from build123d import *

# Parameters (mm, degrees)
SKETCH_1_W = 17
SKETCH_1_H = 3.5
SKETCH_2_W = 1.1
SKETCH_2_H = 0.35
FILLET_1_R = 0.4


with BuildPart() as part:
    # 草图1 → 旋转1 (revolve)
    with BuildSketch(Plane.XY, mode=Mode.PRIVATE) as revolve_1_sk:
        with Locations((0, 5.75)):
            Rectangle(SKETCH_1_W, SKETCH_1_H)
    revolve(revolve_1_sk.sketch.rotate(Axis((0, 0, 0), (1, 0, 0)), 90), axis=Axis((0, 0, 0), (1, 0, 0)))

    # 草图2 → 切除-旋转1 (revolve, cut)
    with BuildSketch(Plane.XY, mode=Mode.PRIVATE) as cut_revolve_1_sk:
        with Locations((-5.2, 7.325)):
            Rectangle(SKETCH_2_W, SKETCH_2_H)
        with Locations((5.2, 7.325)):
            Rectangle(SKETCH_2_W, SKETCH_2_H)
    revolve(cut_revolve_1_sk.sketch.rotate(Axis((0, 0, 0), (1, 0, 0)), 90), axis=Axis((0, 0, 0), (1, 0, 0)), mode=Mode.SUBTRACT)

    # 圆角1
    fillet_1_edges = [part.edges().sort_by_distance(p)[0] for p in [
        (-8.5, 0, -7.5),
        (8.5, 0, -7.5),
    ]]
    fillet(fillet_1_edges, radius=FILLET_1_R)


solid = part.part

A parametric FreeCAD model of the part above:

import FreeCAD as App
import Part
import Sketcher

V = App.Vector
Q = App.Units.Quantity


def edges_at(feature, points):
    """Names of the edges that pass closest to the given points."""
    edges = feature.Shape.Edges
    near = lambda p: min(range(len(edges)), key=lambda i: edges[i].distToShape(Part.Vertex(*p))[0])
    return sorted({f"Edge{near(p) + 1}" for p in points})


def add_polygon(sketch, points):
    """Adds a closed chain of lines whose ends are joined by coincident constraints."""
    first, n = sketch.GeometryCount, len(points)
    for a, b in zip(points, points[1:] + points[:1]):
        sketch.addGeometry(Part.LineSegment(App.Vector(*a, 0), App.Vector(*b, 0)), False)
    for i in range(n):
        sketch.addConstraint(Sketcher.Constraint("Coincident", first + i, 2, first + (i + 1) % n, 1))

doc = App.newDocument("Part")
body = doc.addObject("PartDesign::Body", "Body")

# Sketch on XY plane
sketch1 = body.newObject("Sketcher::SketchObject", "Sketch")
sketch1.AttachmentSupport = (doc.getObject("XY_Plane"), [""])
sketch1.MapMode = "FlatFace"
add_polygon(sketch1, [(-8.5, 7.5), (-8.5, 4), (8.5, 4), (8.5, 7.5)])  # lines 0-3
sketch1.addConstraint(Sketcher.Constraint("Vertical", 0))
sketch1.addConstraint(Sketcher.Constraint("Horizontal", 1))
sketch1.addConstraint(Sketcher.Constraint("Vertical", 2))
sketch1.addConstraint(Sketcher.Constraint("Horizontal", 3))
sketch1.addConstraint(Sketcher.Constraint("DistanceX", 1, 1, 1, 2, Q("17 mm")))
sketch1.addConstraint(Sketcher.Constraint("DistanceY", 0, 2, 0, 1, Q("3.5 mm")))
sketch1.addConstraint(Sketcher.Constraint("DistanceY", -1, 1, 0, 2, Q("4 mm")))
sketch1.addConstraint(Sketcher.Constraint("DistanceX", 0, 2, -1, 1, Q("8.5 mm")))
revolution = body.newObject("PartDesign::Revolution", "Revolution")
revolution.Profile = sketch1
revolution.ReferenceAxis = (sketch1, ["H_Axis"])
revolution.Angle = 360

# Sketch on XY plane
sketch2 = body.newObject("Sketcher::SketchObject", "Sketch001")
sketch2.AttachmentSupport = (doc.getObject("XY_Plane"), [""])
sketch2.MapMode = "FlatFace"
add_polygon(sketch2, [(-5.75, 7.5), (-5.75, 7.15), (-4.65, 7.15), (-4.65, 7.5)])  # lines 0-3
add_polygon(sketch2, [(4.65, 7.5), (4.65, 7.15), (5.75, 7.15), (5.75, 7.5)])  # lines 4-7
sketch2.addConstraint(Sketcher.Constraint("Vertical", 0))
sketch2.addConstraint(Sketcher.Constraint("Horizontal", 1))
sketch2.addConstraint(Sketcher.Constraint("Vertical", 2))
sketch2.addConstraint(Sketcher.Constraint("Horizontal", 3))
sketch2.addConstraint(Sketcher.Constraint("Vertical", 4))
sketch2.addConstraint(Sketcher.Constraint("Horizontal", 5))
sketch2.addConstraint(Sketcher.Constraint("Vertical", 6))
sketch2.addConstraint(Sketcher.Constraint("Horizontal", 7))
sketch2.addConstraint(Sketcher.Constraint("Symmetric", 1, 2, 4, 2, -2))
sketch2.addConstraint(Sketcher.Constraint("Symmetric", 3, 2, 6, 2, -2))
sketch2.addConstraint(Sketcher.Constraint("DistanceX", 1, 1, 1, 2, Q("1.1 mm")))
sketch2.addConstraint(Sketcher.Constraint("DistanceY", 0, 2, 0, 1, Q("0.35 mm")))
sketch2.addConstraint(Sketcher.Constraint("DistanceY", -1, 1, 2, 2, Q("7.5 mm")))
sketch2.addConstraint(Sketcher.Constraint("DistanceX", 1, 2, 4, 2, Q("9.3 mm")))
groove = body.newObject("PartDesign::Groove", "Groove")
groove.Profile = sketch2
groove.ReferenceAxis = (sketch2, ["H_Axis"])
groove.Angle = 360
doc.recompute()

fillet = body.newObject("PartDesign::Fillet", "Fillet")
fillet.Base = (groove, edges_at(groove, [(-8.5, 0, -7.5), (8.5, 0, -7.5)]))
fillet.Radius = 0.4

doc.recompute()
